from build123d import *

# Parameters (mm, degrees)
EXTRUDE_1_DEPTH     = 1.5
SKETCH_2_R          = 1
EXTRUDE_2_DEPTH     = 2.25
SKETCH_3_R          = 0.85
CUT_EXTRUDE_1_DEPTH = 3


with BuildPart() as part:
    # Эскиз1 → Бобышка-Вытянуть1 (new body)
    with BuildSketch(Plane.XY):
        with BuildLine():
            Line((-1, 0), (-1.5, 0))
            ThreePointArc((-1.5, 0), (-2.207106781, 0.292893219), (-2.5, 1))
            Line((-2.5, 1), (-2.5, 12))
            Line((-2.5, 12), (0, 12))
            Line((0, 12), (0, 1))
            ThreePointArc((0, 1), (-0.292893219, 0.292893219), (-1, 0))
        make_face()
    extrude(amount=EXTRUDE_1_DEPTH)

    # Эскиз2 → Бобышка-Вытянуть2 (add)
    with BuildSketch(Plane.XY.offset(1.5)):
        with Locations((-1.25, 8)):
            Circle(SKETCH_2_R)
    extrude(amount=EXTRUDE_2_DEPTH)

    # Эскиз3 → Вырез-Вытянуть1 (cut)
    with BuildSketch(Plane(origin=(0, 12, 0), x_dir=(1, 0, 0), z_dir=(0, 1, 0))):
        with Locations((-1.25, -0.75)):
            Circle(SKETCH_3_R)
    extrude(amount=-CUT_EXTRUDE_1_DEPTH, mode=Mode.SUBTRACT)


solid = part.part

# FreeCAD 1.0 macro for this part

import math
import FreeCAD as App
import Part
import Sketcher
Q = App.Units.Quantity

doc = App.newDocument("Part")
body = doc.addObject("PartDesign::Body", "Body")

# Sketch on XY plane
sketch1 = body.newObject("Sketcher::SketchObject", "Sketch")
sketch1.AttachmentSupport = (doc.getObject("XY_Plane"), [""])
sketch1.MapMode = "FlatFace"
sketch1.addGeometry([
    Part.LineSegment(App.Vector(-1.5, 0, 0), App.Vector(-1, 0, 0)),  # 0
    Part.ArcOfCircle(Part.Circle(App.Vector(-1, 1, 0), App.Vector(0, 0, 1), 1), math.radians(-90), math.radians(0)),  # 1
    Part.LineSegment(App.Vector(0, 1, 0), App.Vector(0, 12, 0)),  # 2
    Part.LineSegment(App.Vector(0, 12, 0), App.Vector(-2.5, 12, 0)),  # 3
    Part.LineSegment(App.Vector(-2.5, 12, 0), App.Vector(-2.5, 1, 0)),  # 4
    Part.ArcOfCircle(Part.Circle(App.Vector(-1.5, 1, 0), App.Vector(0, 0, 1), 1), math.radians(-180), math.radians(-90)),  # 5
], False)
sketch1.addConstraint([
    Sketcher.Constraint("Tangent", 0, 2, 1, 1),
    Sketcher.Constraint("Tangent", 1, 2, 2, 1),
    Sketcher.Constraint("Coincident", 2, 2, 3, 1),
    Sketcher.Constraint("Coincident", 3, 2, 4, 1),
    Sketcher.Constraint("Tangent", 4, 2, 5, 1),
    Sketcher.Constraint("Tangent", 5, 2, 0, 1),
    Sketcher.Constraint("Horizontal", 0),
    Sketcher.Constraint("Vertical", 2),
    Sketcher.Constraint("Horizontal", 3),
    Sketcher.Constraint("Vertical", 4),
    Sketcher.Constraint("Equal", 1, 5),
    Sketcher.Constraint("PointOnObject", 0, 2, -1),
    Sketcher.Constraint("PointOnObject", 1, 2, -2),
    Sketcher.Constraint("Radius", 1, Q("1 mm")),
    Sketcher.Constraint("DistanceY", 2, 1, 2, 2, Q("11 mm")),
    Sketcher.Constraint("DistanceX", 0, 1, 0, 2, Q("0.5 mm")),
])
pad1 = body.newObject("PartDesign::Pad", "Pad")
pad1.Profile = sketch1
pad1.Length = 1.5

# Sketch on XY plane
sketch2 = body.newObject("Sketcher::SketchObject", "Sketch001")
sketch2.AttachmentSupport = (doc.getObject("XY_Plane"), [""])
sketch2.MapMode = "FlatFace"
sketch2.AttachmentOffset = App.Placement(App.Vector(0, 0, 1.5), App.Rotation())
sketch2.addGeometry(Part.Circle(App.Vector(-1.2, 8, 0), App.Vector(0, 0, 1), 1), False)
sketch2.addConstraint([
    Sketcher.Constraint("Diameter", 0, Q("2 mm")),
    Sketcher.Constraint("DistanceY", -1, 1, 0, 3, Q("8 mm")),
    Sketcher.Constraint("DistanceX", 0, 3, -1, 1, Q("1.25 mm")),
])
pad2 = body.newObject("PartDesign::Pad", "Pad001")
pad2.Profile = sketch2
pad2.Length = 2.25

# Sketch on XZ plane
sketch3 = body.newObject("Sketcher::SketchObject", "Sketch002")
sketch3.AttachmentSupport = (doc.getObject("XZ_Plane"), [""])
sketch3.MapMode = "FlatFace"
sketch3.AttachmentOffset = App.Placement(App.Vector(0, 0, -12), App.Rotation())
sketch3.addGeometry(Part.Circle(App.Vector(-1.2, 0.8, 0), App.Vector(0, 0, 1), 0.8), False)
sketch3.addConstraint([
    Sketcher.Constraint("Diameter", 0, Q("1.7 mm")),
    Sketcher.Constraint("DistanceX", 0, 3, -1, 1, Q("1.25 mm")),
    Sketcher.Constraint("DistanceY", -1, 1, 0, 3, Q("0.75 mm")),
])
pocket1 = body.newObject("PartDesign::Pocket", "Pocket")
pocket1.Profile = sketch3
pocket1.Length = 3
pocket1.Reversed = True

doc.recompute()
